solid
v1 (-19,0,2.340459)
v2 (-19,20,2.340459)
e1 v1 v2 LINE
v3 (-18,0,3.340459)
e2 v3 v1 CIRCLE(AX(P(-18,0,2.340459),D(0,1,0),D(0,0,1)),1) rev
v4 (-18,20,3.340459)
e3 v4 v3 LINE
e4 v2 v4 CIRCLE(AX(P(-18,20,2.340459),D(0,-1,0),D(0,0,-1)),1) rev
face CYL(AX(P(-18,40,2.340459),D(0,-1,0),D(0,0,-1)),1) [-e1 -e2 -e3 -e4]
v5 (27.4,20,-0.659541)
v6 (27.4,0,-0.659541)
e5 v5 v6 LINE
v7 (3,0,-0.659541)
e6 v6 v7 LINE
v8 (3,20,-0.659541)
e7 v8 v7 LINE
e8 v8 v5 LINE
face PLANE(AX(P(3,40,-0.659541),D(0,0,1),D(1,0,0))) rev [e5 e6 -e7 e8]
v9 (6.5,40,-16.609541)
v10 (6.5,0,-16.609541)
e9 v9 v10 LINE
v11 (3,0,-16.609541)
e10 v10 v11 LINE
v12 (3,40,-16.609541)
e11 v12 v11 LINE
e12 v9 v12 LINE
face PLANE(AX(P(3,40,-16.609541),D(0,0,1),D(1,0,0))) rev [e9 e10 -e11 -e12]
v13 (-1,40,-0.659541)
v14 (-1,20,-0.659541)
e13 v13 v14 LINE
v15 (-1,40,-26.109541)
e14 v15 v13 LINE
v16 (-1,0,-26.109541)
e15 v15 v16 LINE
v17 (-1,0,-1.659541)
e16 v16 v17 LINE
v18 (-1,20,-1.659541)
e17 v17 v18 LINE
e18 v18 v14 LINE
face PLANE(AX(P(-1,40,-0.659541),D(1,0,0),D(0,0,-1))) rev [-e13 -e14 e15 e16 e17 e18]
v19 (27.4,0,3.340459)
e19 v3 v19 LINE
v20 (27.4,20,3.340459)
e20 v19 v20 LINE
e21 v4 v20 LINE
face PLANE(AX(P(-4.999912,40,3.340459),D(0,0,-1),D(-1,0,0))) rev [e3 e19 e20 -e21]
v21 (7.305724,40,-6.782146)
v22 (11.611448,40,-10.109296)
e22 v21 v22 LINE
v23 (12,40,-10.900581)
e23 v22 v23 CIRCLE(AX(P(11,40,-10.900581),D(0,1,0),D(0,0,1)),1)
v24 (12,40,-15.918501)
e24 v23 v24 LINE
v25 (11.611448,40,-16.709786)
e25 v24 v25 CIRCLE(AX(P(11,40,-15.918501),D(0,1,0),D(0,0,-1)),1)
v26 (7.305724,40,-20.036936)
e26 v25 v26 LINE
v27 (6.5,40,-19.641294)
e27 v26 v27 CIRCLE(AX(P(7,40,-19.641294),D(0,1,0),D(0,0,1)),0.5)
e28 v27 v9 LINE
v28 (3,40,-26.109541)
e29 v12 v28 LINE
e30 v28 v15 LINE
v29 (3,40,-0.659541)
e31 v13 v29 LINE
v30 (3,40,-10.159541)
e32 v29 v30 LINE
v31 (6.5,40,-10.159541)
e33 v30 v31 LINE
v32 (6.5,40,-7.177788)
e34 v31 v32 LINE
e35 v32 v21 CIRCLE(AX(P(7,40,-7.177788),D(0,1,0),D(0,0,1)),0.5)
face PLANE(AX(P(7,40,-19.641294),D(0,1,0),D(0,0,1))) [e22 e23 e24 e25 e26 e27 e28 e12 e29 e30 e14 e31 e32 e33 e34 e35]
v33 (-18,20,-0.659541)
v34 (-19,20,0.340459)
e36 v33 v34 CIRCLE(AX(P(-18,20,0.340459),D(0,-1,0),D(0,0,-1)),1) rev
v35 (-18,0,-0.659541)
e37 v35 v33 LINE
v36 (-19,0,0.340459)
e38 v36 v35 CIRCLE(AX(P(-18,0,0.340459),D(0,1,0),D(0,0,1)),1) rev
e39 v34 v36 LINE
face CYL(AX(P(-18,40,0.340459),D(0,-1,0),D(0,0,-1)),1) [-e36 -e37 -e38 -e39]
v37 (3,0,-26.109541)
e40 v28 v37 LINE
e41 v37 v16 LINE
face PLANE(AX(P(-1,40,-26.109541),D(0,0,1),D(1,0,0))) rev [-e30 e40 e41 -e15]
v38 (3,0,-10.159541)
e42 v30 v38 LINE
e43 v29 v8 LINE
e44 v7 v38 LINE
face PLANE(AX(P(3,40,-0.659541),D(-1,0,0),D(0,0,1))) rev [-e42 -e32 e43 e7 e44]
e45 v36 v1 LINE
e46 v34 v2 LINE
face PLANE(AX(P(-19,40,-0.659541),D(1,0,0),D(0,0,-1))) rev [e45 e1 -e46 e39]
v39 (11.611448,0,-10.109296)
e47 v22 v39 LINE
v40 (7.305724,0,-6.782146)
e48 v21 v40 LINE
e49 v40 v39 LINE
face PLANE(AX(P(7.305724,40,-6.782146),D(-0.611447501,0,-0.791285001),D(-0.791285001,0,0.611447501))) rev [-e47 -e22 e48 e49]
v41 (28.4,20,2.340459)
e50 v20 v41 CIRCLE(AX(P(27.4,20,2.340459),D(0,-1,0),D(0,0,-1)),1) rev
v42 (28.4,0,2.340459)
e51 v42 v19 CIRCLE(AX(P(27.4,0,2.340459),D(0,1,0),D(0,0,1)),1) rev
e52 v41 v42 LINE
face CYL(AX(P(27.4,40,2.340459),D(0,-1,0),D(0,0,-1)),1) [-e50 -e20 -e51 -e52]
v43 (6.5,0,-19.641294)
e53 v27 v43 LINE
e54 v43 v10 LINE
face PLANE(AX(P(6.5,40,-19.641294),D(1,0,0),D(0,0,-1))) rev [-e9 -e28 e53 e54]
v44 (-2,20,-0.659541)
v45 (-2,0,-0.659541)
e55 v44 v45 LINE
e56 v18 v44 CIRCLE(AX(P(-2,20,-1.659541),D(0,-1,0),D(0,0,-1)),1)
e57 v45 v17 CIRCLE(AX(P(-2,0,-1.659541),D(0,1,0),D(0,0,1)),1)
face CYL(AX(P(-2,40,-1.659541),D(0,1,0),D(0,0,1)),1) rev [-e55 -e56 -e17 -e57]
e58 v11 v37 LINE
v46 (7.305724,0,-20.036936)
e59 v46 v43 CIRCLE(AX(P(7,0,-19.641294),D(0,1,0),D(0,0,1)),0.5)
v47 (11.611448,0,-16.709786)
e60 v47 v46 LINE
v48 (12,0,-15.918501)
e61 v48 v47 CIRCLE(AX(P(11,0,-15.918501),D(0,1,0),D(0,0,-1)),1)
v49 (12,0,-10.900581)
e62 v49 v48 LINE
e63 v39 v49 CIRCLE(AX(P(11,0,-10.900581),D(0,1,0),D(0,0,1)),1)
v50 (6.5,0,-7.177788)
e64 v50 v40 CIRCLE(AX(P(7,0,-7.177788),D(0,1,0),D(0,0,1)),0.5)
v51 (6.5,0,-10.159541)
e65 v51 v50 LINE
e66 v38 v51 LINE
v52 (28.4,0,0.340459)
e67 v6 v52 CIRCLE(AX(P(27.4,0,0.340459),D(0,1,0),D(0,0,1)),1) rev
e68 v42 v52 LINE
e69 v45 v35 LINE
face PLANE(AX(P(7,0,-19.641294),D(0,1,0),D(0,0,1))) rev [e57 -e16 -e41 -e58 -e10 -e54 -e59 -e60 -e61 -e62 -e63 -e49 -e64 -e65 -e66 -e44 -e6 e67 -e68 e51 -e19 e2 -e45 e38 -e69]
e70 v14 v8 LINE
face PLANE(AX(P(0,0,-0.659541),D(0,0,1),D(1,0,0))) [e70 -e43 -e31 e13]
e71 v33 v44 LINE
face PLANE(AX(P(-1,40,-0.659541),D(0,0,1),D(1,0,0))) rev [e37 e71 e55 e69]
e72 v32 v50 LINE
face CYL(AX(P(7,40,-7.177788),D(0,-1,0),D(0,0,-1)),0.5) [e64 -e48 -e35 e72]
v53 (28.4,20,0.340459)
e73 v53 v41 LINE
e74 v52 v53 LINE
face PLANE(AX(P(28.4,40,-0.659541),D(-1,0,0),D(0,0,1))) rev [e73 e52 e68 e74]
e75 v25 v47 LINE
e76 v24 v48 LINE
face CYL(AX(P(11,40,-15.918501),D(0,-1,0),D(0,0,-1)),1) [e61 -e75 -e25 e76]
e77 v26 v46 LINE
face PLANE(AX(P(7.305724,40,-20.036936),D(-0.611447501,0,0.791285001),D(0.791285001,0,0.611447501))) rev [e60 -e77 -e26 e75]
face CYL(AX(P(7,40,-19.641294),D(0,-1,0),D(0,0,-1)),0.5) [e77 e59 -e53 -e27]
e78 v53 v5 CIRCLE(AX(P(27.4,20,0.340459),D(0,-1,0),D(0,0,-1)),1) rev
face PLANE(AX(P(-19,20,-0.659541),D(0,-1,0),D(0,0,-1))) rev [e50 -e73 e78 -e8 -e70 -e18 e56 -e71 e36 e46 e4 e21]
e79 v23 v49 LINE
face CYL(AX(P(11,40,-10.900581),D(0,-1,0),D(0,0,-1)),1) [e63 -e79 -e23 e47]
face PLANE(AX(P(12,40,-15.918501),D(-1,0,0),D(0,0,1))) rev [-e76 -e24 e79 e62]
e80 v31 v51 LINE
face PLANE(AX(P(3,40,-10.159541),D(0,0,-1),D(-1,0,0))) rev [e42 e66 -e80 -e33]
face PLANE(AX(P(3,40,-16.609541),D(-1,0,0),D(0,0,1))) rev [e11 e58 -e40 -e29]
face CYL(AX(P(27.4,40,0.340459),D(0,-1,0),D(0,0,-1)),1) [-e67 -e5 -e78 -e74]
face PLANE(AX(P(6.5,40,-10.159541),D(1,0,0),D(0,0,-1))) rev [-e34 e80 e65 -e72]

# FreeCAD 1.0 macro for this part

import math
import FreeCAD as App
import Part
import Sketcher
from FreeCAD import Vector


def edges_at(feature, points):
    """Names of the edges that pass closest to the given points."""
    edges = feature.Shape.Edges
    near = lambda p: min(range(len(edges)), key=lambda i: edges[i].distToShape(Part.Vertex(*p))[0])
    return sorted({f"Edge{near(p) + 1}" for p in points})

doc = App.newDocument("Part")
body = doc.addObject("PartDesign::Body", "Body")

# Sketch on XZ plane
sketch1 = body.newObject("Sketcher::SketchObject", "Sketch")
sketch1.AttachmentSupport = (doc.getObject("XZ_Plane"), [""])
sketch1.MapMode = "FlatFace"
sketch1.addGeometry([
    Part.LineSegment(Vector(6.5, -10.2, 0), Vector(6.5, -7.2, 0)),  # 0
    Part.ArcOfCircle(Part.Circle(Vector(7, -7.2, 0), Vector(0, 0, 1), 0.5), math.radians(52), math.radians(180)),  # 1
    Part.LineSegment(Vector(7.3, -6.8, 0), Vector(11.6, -10.1, 0)),  # 2
    Part.ArcOfCircle(Part.Circle(Vector(11, -10.9, 0), Vector(0, 0, 1), 1), math.radians(0), math.radians(52)),  # 3
    Part.LineSegment(Vector(12, -10.9, 0), Vector(12, -15.9, 0)),  # 4
    Part.ArcOfCircle(Part.Circle(Vector(11, -15.9, 0), Vector(0, 0, 1), 1), math.radians(-52), math.radians(0)),  # 5
    Part.LineSegment(Vector(11.6, -16.7, 0), Vector(7.3, -20, 0)),  # 6
    Part.ArcOfCircle(Part.Circle(Vector(7, -19.6, 0), Vector(0, 0, 1), 0.5), math.radians(180), math.radians(308)),  # 7
    Part.LineSegment(Vector(6.5, -19.6, 0), Vector(6.5, -16.6, 0)),  # 8
    Part.LineSegment(Vector(6.5, -16.6, 0), Vector(3, -16.6, 0)),  # 9
    Part.LineSegment(Vector(3, -16.6, 0), Vector(3, -26.1, 0)),  # 10
    Part.LineSegment(Vector(3, -26.1, 0), Vector(-1, -26.1, 0)),  # 11
    Part.LineSegment(Vector(-1, -26.1, 0), Vector(-1, -0.7, 0)),  # 12
    Part.LineSegment(Vector(-1, -0.7, 0), Vector(-19, -0.7, 0)),  # 13
    Part.LineSegment(Vector(-19, -0.7, 0), Vector(-19, 3.3, 0)),  # 14
    Part.LineSegment(Vector(-19, 3.3, 0), Vector(28.4, 3.3, 0)),  # 15
    Part.LineSegment(Vector(28.4, 3.3, 0), Vector(28.4, -0.7, 0)),  # 16
    Part.LineSegment(Vector(28.4, -0.7, 0), Vector(3, -0.7, 0)),  # 17
    Part.LineSegment(Vector(3, -0.7, 0), Vector(3, -10.2, 0)),  # 18
    Part.LineSegment(Vector(3, -10.2, 0), Vector(6.5, -10.2, 0)),  # 19
], False)
sketch1.addConstraint([
    Sketcher.Constraint("Tangent", 0, 2, 1, 2),
    Sketcher.Constraint("Tangent", 1, 1, 2, 1),
    Sketcher.Constraint("Tangent", 2, 2, 3, 2),
    Sketcher.Constraint("Tangent", 3, 1, 4, 1),
    Sketcher.Constraint("Tangent", 4, 2, 5, 2),
    Sketcher.Constraint("Tangent", 5, 1, 6, 1),
    Sketcher.Constraint("Tangent", 6, 2, 7, 2),
    Sketcher.Constraint("Tangent", 7, 1, 8, 1),
    Sketcher.Constraint("Coincident", 8, 2, 9, 1),
    Sketcher.Constraint("Coincident", 9, 2, 10, 1),
    Sketcher.Constraint("Coincident", 10, 2, 11, 1),
    Sketcher.Constraint("Coincident", 11, 2, 12, 1),
    Sketcher.Constraint("Coincident", 12, 2, 13, 1),
    Sketcher.Constraint("Coincident", 13, 2, 14, 1),
    Sketcher.Constraint("Coincident", 14, 2, 15, 1),
    Sketcher.Constraint("Coincident", 15, 2, 16, 1),
    Sketcher.Constraint("Coincident", 16, 2, 17, 1),
    Sketcher.Constraint("Coincident", 17, 2, 18, 1),
    Sketcher.Constraint("Coincident", 18, 2, 19, 1),
    Sketcher.Constraint("Coincident", 19, 2, 0, 1),
    Sketcher.Constraint("Vertical", 0),
    Sketcher.Constraint("Vertical", 4),
    Sketcher.Constraint("Vertical", 8),
    Sketcher.Constraint("Horizontal", 9),
    Sketcher.Constraint("Vertical", 10),
    Sketcher.Constraint("Horizontal", 11),
    Sketcher.Constraint("Vertical", 12),
    Sketcher.Constraint("Horizontal", 13),
    Sketcher.Constraint("Vertical", 14),
    Sketcher.Constraint("Horizontal", 15),
    Sketcher.Constraint("Vertical", 16),
    Sketcher.Constraint("Horizontal", 17),
    Sketcher.Constraint("Vertical", 18),
    Sketcher.Constraint("Horizontal", 19),
    Sketcher.Constraint("Equal", 3, 5),
    Sketcher.Constraint("Equal", 1, 7),
    Sketcher.Constraint("Horizontal", 13, 2, 16, 2),
    Sketcher.Constraint("Vertical", 1, 3, 7, 3),
    Sketcher.Constraint("Vertical", 2, 2, 5, 1),
    Sketcher.Constraint("Vertical", 10, 2, 17, 2),
    Sketcher.Constraint("Equal", 11, 14),
    Sketcher.Constraint("Equal", 10, 18),
    Sketcher.Constraint("Radius", 3, 1.0),
    Sketcher.Constraint("Radius", 1, 0.5),
    Sketcher.Constraint("DistanceX", 11, 2, 11, 1, 4.0),
    Sketcher.Constraint("DistanceX", 13, 2, 13, 1, 18.0),
    Sketcher.Constraint("DistanceX", 9, 2, 9, 1, 3.5),
    Sketcher.Constraint("DistanceX", 15, 1, 15, 2, 47.4),
    Sketcher.Constraint("DistanceY", 10, 2, 10, 1, 9.5),
    Sketcher.Constraint("DistanceX", -1, 1, 1, 3, 7.0),
    Sketcher.Constraint("DistanceX", -1, 1, 3, 3, 11.0),
    Sketcher.Constraint("DistanceY", 12, 1, 12, 2, 25.45),
    Sketcher.Constraint("DistanceY", 4, 2, 4, 1, 5.01792),
    Sketcher.Constraint("DistanceY", 5, 3, -1, 1, 15.918501),
    Sketcher.Constraint("DistanceY", 0, 1, 0, 2, 2.981753),
    Sketcher.Constraint("DistanceY", 8, 1, 8, 2, 3.031753),
])
pad1 = body.newObject("PartDesign::Pad", "Pad")
pad1.Profile = sketch1
pad1.Length = 40
pad1.Reversed = True

# Sketch on XY plane
sketch2 = body.newObject("Sketcher::SketchObject", "Sketch001")
sketch2.AttachmentSupport = (doc.getObject("XY_Plane"), [""])
sketch2.MapMode = "FlatFace"
sketch2.AttachmentOffset = App.Placement(Vector(0, 0, -0.659541), App.Rotation())
sketch2.addGeometry([
    Part.LineSegment(Vector(-19, 40, 0), Vector(-19, 20, 0)),
    Part.LineSegment(Vector(-19, 20, 0), Vector(28, 20, 0)),
    Part.LineSegment(Vector(28, 20, 0), Vector(28, 40, 0)),
    Part.LineSegment(Vector(28, 40, 0), Vector(-19, 40, 0)),
], False)
sketch2.addConstraint([
    Sketcher.Constraint("Coincident", 0, 2, 1, 1),
    Sketcher.Constraint("Coincident", 1, 2, 2, 1),
    Sketcher.Constraint("Coincident", 2, 2, 3, 1),
    Sketcher.Constraint("Coincident", 3, 2, 0, 1),
    Sketcher.Constraint("Vertical", 0),
    Sketcher.Constraint("Horizontal", 1),
    Sketcher.Constraint("Vertical", 2),
    Sketcher.Constraint("Horizontal", 3),
    Sketcher.Constraint("DistanceY", 0, 2, 0, 1, 20.0),
    Sketcher.Constraint("DistanceX", 1, 1, 1, 2, 47.4),
    Sketcher.Constraint("DistanceX", 0, 2, -1, 1, 19.0),
    Sketcher.Constraint("DistanceY", -1, 1, 0, 2, 20.0),
])
pocket1 = body.newObject("PartDesign::Pocket", "Pocket")
pocket1.Profile = sketch2
pocket1.Length = 4
pocket1.Reversed = True
doc.recompute()

fillet = body.newObject("PartDesign::Fillet", "Fillet")
fillet.Base = (pocket1, edges_at(pocket1, [(28.4, 10, 3.34), (-19, 10, 3.34), (28.4, 10, -0.66)]))
fillet.Radius = 1
doc.recompute()

fillet2 = body.newObject("PartDesign::Fillet", "Fillet001")
fillet2.Base = (fillet, edges_at(fillet, [(-19, 10, -0.66)]))
fillet2.Radius = 1
doc.recompute()

fillet3 = body.newObject("PartDesign::Fillet", "Fillet002")
fillet3.Base = (fillet2, edges_at(fillet2, [(-1, 10, -0.66)]))
fillet3.Radius = 1

doc.recompute()
